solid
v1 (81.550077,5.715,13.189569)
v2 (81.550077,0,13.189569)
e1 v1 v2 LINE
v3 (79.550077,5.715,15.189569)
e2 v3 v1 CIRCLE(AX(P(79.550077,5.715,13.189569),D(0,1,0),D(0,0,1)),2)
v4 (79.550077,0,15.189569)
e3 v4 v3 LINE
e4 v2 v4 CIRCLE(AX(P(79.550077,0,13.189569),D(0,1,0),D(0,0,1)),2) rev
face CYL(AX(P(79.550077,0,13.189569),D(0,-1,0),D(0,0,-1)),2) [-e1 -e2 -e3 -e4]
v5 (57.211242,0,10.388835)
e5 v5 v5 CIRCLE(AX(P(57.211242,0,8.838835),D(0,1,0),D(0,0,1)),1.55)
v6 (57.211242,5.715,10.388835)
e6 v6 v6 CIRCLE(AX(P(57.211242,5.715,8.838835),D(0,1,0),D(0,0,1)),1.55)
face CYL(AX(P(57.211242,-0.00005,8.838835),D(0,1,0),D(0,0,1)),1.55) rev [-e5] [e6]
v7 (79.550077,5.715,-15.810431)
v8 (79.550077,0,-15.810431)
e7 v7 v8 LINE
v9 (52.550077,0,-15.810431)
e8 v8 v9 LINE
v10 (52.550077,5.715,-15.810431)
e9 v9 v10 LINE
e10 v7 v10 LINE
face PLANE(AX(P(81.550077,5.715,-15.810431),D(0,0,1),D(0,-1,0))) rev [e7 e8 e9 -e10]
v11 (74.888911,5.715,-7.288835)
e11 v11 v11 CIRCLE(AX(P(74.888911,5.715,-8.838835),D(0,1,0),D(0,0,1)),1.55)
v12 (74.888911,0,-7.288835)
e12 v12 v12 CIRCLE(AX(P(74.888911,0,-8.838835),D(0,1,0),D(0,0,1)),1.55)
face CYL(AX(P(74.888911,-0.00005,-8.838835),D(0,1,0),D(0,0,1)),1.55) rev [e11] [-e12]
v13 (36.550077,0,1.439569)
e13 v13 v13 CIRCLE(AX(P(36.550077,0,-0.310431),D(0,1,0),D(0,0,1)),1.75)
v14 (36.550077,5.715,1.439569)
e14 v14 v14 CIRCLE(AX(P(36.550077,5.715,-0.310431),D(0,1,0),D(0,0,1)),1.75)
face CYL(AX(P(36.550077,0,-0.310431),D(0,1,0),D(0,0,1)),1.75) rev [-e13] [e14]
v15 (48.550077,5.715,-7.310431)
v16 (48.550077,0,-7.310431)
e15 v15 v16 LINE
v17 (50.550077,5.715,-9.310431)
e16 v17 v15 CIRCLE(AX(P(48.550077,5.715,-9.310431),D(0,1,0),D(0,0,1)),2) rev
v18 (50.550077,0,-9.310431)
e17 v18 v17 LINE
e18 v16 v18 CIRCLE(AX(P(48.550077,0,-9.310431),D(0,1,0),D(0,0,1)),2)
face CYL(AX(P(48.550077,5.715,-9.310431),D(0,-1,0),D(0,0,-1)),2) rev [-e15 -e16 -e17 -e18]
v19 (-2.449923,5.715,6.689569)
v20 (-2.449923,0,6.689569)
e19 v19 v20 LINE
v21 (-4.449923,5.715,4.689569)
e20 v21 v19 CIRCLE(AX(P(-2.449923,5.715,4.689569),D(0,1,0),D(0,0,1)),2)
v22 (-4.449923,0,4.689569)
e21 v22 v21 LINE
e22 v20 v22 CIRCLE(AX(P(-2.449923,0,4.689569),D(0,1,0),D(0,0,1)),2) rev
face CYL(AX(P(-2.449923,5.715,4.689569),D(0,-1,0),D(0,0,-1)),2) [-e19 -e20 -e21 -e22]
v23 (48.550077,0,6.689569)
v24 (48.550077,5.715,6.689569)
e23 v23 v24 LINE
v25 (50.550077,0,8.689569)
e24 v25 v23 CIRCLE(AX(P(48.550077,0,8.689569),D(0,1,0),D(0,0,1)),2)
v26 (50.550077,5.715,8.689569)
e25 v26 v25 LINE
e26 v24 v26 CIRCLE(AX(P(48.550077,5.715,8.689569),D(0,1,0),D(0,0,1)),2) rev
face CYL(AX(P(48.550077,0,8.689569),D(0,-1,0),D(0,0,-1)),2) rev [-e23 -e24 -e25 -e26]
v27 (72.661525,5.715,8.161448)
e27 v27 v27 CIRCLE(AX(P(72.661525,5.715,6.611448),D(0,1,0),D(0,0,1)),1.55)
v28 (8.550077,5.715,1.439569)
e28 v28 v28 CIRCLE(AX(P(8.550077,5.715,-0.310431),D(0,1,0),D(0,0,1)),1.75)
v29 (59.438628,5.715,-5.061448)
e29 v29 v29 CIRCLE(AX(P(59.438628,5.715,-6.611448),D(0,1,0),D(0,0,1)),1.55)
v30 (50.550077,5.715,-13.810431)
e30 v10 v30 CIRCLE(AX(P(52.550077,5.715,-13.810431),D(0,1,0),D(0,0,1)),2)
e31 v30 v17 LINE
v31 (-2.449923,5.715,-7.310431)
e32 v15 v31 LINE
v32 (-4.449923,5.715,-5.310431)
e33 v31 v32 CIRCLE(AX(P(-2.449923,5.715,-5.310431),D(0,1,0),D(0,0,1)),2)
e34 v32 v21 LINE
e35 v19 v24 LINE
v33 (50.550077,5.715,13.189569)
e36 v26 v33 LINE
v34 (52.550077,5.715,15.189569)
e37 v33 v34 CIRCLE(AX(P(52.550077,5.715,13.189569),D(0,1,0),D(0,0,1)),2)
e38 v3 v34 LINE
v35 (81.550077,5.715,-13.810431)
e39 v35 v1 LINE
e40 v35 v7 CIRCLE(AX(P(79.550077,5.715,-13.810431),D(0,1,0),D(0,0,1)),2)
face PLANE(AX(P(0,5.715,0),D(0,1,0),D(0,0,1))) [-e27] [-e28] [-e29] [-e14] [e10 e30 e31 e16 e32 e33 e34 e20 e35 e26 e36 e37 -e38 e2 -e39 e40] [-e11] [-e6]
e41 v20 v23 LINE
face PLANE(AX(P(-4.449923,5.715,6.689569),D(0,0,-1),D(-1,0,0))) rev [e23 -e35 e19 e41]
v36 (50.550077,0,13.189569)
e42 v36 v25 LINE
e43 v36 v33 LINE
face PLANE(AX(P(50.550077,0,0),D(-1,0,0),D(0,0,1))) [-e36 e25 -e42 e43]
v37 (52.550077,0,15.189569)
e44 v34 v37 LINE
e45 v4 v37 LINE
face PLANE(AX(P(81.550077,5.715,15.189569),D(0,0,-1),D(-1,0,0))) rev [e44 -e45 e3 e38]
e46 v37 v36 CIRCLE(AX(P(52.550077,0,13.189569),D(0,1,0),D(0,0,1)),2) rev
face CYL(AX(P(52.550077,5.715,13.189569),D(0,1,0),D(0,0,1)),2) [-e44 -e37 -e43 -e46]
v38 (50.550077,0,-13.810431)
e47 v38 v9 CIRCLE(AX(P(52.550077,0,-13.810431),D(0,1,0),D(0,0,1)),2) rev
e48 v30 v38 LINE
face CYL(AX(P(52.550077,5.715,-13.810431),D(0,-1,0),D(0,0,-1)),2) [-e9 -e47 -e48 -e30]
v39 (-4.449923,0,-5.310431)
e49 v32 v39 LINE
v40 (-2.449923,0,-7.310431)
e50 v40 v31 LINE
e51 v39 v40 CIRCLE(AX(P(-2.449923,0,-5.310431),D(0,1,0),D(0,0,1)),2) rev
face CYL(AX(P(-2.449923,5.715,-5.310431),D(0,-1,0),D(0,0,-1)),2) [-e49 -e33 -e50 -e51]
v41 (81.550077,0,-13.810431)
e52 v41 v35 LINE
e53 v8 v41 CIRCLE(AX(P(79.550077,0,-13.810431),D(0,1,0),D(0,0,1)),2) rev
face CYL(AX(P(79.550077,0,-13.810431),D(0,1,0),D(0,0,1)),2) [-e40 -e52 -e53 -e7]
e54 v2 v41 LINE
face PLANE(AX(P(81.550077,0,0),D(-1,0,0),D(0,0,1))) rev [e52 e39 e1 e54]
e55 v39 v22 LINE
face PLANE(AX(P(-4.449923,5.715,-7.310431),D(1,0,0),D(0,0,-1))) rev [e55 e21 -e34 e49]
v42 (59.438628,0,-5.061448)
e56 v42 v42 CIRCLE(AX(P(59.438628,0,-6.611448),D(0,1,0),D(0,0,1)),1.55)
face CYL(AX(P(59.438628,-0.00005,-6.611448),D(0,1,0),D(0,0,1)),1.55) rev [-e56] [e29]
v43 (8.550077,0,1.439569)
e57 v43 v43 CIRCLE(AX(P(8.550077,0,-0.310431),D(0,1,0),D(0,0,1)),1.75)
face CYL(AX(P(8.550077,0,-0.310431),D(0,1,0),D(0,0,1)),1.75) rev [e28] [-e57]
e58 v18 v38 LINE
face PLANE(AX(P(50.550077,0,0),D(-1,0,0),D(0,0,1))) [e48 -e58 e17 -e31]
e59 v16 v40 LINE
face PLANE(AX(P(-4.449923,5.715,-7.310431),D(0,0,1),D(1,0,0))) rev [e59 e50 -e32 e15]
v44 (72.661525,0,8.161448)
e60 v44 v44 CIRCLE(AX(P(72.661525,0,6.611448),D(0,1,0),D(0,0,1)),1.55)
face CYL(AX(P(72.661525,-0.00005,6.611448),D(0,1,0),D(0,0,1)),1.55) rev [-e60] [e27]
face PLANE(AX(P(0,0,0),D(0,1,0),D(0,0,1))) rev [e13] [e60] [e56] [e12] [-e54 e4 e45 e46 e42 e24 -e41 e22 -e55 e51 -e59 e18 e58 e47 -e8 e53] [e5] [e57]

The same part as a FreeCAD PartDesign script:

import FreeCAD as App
import Part
import Sketcher


def edges_at(feature, points):
    """Names of the edges that pass closest to the given points."""
    edges = feature.Shape.Edges
    near = lambda p: min(range(len(edges)), key=lambda i: edges[i].distToShape(Part.Vertex(*p))[0])
    return sorted({f"Edge{near(p) + 1}" for p in points})

doc = App.newDocument("Part")
body = doc.addObject("PartDesign::Body", "Body")

# Sketch on XZ plane
sketch1 = body.newObject("Sketcher::SketchObject", "Sketch")
sketch1.AttachmentSupport = (doc.getObject("XZ_Plane"), [""])
sketch1.MapMode = "FlatFace"
sketch1.addGeometry([
    Part.LineSegment(App.Vector(-4, -7, 0), App.Vector(-4, 7, 0)),
    Part.LineSegment(App.Vector(-4, 7, 0), App.Vector(51, 7, 0)),
    Part.LineSegment(App.Vector(51, 7, 0), App.Vector(51, -7, 0)),
    Part.LineSegment(App.Vector(51, -7, 0), App.Vector(-4, -7, 0)),
], False)
sketch1.addConstraint([
    Sketcher.Constraint("Coincident", 0, 2, 1, 1),
    Sketcher.Constraint("Coincident", 1, 2, 2, 1),
    Sketcher.Constraint("Coincident", 2, 2, 3, 1),
    Sketcher.Constraint("Coincident", 3, 2, 0, 1),
    Sketcher.Constraint("Vertical", 0),
    Sketcher.Constraint("Horizontal", 1),
    Sketcher.Constraint("Vertical", 2),
    Sketcher.Constraint("Horizontal", 3),
    Sketcher.Constraint("DistanceX", 1, 1, 1, 2, 55.0),
    Sketcher.Constraint("DistanceY", 0, 1, 0, 2, 14.0),
    Sketcher.Constraint("DistanceY", -1, 1, 0, 2, 6.689569),
    Sketcher.Constraint("DistanceX", 0, 2, -1, 1, 4.449923),
])
pad1 = body.newObject("PartDesign::Pad", "Pad")
pad1.Profile = sketch1
pad1.Length = 5.715
pad1.Reversed = True

# Sketch on XZ plane
sketch2 = body.newObject("Sketcher::SketchObject", "Sketch001")
sketch2.AttachmentSupport = (doc.getObject("XZ_Plane"), [""])
sketch2.MapMode = "FlatFace"
sketch2.AttachmentOffset = App.Placement(App.Vector(0, 0, -5.715), App.Rotation())
sketch2.addGeometry([
    Part.Circle(App.Vector(8.6, -0.3, 0), App.Vector(0, 0, 1), 1.8),
    Part.Circle(App.Vector(36.6, -0.3, 0), App.Vector(0, 0, 1), 1.8),
], False)
sketch2.addConstraint([
    Sketcher.Constraint("Equal", 0, 1),
    Sketcher.Constraint("Horizontal", 0, 3, 1, 3),
    Sketcher.Constraint("Diameter", 0, 3.5),
    Sketcher.Constraint("DistanceX", 0, 3, 1, 3, 28.0),
    Sketcher.Constraint("DistanceY", 0, 3, -1, 1, 0.310431),
    Sketcher.Constraint("DistanceX", -1, 1, 0, 3, 8.550077),
])
pocket1 = body.newObject("PartDesign::Pocket", "Pocket")
pocket1.Profile = sketch2
pocket1.Type = "ThroughAll"
pocket1.Reversed = True

# Sketch on YZ plane
sketch3 = body.newObject("Sketcher::SketchObject", "Sketch002")
sketch3.AttachmentSupport = (doc.getObject("YZ_Plane"), [""])
sketch3.MapMode = "FlatFace"
sketch3.AttachmentOffset = App.Placement(App.Vector(0, 0, 50.550077), App.Rotation())
sketch3.addGeometry([
    Part.LineSegment(App.Vector(6, 15, 0), App.Vector(0, 15, 0)),
    Part.LineSegment(App.Vector(0, 15, 0), App.Vector(0, -16, 0)),
    Part.LineSegment(App.Vector(0, -16, 0), App.Vector(6, -16, 0)),
    Part.LineSegment(App.Vector(6, -16, 0), App.Vector(6, 15, 0)),
], False)
sketch3.addConstraint([
    Sketcher.Constraint("Coincident", 0, 2, 1, 1),
    Sketcher.Constraint("Coincident", 1, 2, 2, 1),
    Sketcher.Constraint("Coincident", 2, 2, 3, 1),
    Sketcher.Constraint("Coincident", 3, 2, 0, 1),
    Sketcher.Constraint("Horizontal", 0),
    Sketcher.Constraint("Vertical", 1),
    Sketcher.Constraint("Horizontal", 2),
    Sketcher.Constraint("Vertical", 3),
    Sketcher.Constraint("PointOnObject", 0, 2, -2),
    Sketcher.Constraint("DistanceY", 1, 2, 1, 1, 31.0),
    Sketcher.Constraint("DistanceX", 0, 2, 0, 1, 5.715),
    Sketcher.Constraint("DistanceY", -1, 1, 0, 2, 15.189569),
])
pad2 = body.newObject("PartDesign::Pad", "Pad001")
pad2.Profile = sketch3
pad2.Length = 31

# Sketch on XZ plane
sketch4 = body.newObject("Sketcher::SketchObject", "Sketch003")
sketch4.AttachmentSupport = (doc.getObject("XZ_Plane"), [""])
sketch4.MapMode = "FlatFace"
sketch4.AttachmentOffset = App.Placement(App.Vector(0, 0, -5.715), App.Rotation())
sketch4.addGeometry([
    Part.Circle(App.Vector(57.2, 8.8, 0), App.Vector(0, 0, 1), 1.6),
    Part.Circle(App.Vector(59.4, -6.6, 0), App.Vector(0, 0, 1), 1.6),
    Part.Circle(App.Vector(74.9, -8.8, 0), App.Vector(0, 0, 1), 1.6),
    Part.Circle(App.Vector(72.7, 6.6, 0), App.Vector(0, 0, 1), 1.6),
], False)
sketch4.addConstraint([
    Sketcher.Constraint("Equal", 0, 1),
    Sketcher.Constraint("Equal", 1, 2),
    Sketcher.Constraint("Equal", 2, 3),
    Sketcher.Constraint("Diameter", 0, 3.1),
    Sketcher.Constraint("DistanceX", -1, 1, 0, 3, 57.211242),
    Sketcher.Constraint("DistanceX", -1, 1, 1, 3, 59.438628),
    Sketcher.Constraint("DistanceY", 1, 3, -1, 1, 6.611448),
    Sketcher.Constraint("DistanceX", -1, 1, 2, 3, 74.888911),
    Sketcher.Constraint("DistanceY", -1, 1, 3, 3, 6.611448),
    Sketcher.Constraint("DistanceY", 2, 3, 0, 3, 17.67767),
    Sketcher.Constraint("DistanceY", -1, 1, 0, 3, 8.838835),
    Sketcher.Constraint("DistanceX", -1, 1, 3, 3, 72.661525),
])
pocket2 = body.newObject("PartDesign::Pocket", "Pocket001")
pocket2.Profile = sketch4
pocket2.Type = "ThroughAll"
pocket2.Reversed = True
doc.recompute()

fillet = body.newObject("PartDesign::Fillet", "Fillet")
fillet.Base = (pocket2, edges_at(pocket2, [
    (-4.45, 2.857, -7.31),
    (-4.45, 2.857, 6.69),
    (50.55, 2.857, -7.31),
    (50.55, 2.857, 6.69),
    (50.55, 2.857, -15.81),
    (81.55, 2.857, -15.81),
    (81.55, 2.857, 15.19),
    (50.55, 2.857, 15.19),
]))
fillet.Radius = 2

doc.recompute()
